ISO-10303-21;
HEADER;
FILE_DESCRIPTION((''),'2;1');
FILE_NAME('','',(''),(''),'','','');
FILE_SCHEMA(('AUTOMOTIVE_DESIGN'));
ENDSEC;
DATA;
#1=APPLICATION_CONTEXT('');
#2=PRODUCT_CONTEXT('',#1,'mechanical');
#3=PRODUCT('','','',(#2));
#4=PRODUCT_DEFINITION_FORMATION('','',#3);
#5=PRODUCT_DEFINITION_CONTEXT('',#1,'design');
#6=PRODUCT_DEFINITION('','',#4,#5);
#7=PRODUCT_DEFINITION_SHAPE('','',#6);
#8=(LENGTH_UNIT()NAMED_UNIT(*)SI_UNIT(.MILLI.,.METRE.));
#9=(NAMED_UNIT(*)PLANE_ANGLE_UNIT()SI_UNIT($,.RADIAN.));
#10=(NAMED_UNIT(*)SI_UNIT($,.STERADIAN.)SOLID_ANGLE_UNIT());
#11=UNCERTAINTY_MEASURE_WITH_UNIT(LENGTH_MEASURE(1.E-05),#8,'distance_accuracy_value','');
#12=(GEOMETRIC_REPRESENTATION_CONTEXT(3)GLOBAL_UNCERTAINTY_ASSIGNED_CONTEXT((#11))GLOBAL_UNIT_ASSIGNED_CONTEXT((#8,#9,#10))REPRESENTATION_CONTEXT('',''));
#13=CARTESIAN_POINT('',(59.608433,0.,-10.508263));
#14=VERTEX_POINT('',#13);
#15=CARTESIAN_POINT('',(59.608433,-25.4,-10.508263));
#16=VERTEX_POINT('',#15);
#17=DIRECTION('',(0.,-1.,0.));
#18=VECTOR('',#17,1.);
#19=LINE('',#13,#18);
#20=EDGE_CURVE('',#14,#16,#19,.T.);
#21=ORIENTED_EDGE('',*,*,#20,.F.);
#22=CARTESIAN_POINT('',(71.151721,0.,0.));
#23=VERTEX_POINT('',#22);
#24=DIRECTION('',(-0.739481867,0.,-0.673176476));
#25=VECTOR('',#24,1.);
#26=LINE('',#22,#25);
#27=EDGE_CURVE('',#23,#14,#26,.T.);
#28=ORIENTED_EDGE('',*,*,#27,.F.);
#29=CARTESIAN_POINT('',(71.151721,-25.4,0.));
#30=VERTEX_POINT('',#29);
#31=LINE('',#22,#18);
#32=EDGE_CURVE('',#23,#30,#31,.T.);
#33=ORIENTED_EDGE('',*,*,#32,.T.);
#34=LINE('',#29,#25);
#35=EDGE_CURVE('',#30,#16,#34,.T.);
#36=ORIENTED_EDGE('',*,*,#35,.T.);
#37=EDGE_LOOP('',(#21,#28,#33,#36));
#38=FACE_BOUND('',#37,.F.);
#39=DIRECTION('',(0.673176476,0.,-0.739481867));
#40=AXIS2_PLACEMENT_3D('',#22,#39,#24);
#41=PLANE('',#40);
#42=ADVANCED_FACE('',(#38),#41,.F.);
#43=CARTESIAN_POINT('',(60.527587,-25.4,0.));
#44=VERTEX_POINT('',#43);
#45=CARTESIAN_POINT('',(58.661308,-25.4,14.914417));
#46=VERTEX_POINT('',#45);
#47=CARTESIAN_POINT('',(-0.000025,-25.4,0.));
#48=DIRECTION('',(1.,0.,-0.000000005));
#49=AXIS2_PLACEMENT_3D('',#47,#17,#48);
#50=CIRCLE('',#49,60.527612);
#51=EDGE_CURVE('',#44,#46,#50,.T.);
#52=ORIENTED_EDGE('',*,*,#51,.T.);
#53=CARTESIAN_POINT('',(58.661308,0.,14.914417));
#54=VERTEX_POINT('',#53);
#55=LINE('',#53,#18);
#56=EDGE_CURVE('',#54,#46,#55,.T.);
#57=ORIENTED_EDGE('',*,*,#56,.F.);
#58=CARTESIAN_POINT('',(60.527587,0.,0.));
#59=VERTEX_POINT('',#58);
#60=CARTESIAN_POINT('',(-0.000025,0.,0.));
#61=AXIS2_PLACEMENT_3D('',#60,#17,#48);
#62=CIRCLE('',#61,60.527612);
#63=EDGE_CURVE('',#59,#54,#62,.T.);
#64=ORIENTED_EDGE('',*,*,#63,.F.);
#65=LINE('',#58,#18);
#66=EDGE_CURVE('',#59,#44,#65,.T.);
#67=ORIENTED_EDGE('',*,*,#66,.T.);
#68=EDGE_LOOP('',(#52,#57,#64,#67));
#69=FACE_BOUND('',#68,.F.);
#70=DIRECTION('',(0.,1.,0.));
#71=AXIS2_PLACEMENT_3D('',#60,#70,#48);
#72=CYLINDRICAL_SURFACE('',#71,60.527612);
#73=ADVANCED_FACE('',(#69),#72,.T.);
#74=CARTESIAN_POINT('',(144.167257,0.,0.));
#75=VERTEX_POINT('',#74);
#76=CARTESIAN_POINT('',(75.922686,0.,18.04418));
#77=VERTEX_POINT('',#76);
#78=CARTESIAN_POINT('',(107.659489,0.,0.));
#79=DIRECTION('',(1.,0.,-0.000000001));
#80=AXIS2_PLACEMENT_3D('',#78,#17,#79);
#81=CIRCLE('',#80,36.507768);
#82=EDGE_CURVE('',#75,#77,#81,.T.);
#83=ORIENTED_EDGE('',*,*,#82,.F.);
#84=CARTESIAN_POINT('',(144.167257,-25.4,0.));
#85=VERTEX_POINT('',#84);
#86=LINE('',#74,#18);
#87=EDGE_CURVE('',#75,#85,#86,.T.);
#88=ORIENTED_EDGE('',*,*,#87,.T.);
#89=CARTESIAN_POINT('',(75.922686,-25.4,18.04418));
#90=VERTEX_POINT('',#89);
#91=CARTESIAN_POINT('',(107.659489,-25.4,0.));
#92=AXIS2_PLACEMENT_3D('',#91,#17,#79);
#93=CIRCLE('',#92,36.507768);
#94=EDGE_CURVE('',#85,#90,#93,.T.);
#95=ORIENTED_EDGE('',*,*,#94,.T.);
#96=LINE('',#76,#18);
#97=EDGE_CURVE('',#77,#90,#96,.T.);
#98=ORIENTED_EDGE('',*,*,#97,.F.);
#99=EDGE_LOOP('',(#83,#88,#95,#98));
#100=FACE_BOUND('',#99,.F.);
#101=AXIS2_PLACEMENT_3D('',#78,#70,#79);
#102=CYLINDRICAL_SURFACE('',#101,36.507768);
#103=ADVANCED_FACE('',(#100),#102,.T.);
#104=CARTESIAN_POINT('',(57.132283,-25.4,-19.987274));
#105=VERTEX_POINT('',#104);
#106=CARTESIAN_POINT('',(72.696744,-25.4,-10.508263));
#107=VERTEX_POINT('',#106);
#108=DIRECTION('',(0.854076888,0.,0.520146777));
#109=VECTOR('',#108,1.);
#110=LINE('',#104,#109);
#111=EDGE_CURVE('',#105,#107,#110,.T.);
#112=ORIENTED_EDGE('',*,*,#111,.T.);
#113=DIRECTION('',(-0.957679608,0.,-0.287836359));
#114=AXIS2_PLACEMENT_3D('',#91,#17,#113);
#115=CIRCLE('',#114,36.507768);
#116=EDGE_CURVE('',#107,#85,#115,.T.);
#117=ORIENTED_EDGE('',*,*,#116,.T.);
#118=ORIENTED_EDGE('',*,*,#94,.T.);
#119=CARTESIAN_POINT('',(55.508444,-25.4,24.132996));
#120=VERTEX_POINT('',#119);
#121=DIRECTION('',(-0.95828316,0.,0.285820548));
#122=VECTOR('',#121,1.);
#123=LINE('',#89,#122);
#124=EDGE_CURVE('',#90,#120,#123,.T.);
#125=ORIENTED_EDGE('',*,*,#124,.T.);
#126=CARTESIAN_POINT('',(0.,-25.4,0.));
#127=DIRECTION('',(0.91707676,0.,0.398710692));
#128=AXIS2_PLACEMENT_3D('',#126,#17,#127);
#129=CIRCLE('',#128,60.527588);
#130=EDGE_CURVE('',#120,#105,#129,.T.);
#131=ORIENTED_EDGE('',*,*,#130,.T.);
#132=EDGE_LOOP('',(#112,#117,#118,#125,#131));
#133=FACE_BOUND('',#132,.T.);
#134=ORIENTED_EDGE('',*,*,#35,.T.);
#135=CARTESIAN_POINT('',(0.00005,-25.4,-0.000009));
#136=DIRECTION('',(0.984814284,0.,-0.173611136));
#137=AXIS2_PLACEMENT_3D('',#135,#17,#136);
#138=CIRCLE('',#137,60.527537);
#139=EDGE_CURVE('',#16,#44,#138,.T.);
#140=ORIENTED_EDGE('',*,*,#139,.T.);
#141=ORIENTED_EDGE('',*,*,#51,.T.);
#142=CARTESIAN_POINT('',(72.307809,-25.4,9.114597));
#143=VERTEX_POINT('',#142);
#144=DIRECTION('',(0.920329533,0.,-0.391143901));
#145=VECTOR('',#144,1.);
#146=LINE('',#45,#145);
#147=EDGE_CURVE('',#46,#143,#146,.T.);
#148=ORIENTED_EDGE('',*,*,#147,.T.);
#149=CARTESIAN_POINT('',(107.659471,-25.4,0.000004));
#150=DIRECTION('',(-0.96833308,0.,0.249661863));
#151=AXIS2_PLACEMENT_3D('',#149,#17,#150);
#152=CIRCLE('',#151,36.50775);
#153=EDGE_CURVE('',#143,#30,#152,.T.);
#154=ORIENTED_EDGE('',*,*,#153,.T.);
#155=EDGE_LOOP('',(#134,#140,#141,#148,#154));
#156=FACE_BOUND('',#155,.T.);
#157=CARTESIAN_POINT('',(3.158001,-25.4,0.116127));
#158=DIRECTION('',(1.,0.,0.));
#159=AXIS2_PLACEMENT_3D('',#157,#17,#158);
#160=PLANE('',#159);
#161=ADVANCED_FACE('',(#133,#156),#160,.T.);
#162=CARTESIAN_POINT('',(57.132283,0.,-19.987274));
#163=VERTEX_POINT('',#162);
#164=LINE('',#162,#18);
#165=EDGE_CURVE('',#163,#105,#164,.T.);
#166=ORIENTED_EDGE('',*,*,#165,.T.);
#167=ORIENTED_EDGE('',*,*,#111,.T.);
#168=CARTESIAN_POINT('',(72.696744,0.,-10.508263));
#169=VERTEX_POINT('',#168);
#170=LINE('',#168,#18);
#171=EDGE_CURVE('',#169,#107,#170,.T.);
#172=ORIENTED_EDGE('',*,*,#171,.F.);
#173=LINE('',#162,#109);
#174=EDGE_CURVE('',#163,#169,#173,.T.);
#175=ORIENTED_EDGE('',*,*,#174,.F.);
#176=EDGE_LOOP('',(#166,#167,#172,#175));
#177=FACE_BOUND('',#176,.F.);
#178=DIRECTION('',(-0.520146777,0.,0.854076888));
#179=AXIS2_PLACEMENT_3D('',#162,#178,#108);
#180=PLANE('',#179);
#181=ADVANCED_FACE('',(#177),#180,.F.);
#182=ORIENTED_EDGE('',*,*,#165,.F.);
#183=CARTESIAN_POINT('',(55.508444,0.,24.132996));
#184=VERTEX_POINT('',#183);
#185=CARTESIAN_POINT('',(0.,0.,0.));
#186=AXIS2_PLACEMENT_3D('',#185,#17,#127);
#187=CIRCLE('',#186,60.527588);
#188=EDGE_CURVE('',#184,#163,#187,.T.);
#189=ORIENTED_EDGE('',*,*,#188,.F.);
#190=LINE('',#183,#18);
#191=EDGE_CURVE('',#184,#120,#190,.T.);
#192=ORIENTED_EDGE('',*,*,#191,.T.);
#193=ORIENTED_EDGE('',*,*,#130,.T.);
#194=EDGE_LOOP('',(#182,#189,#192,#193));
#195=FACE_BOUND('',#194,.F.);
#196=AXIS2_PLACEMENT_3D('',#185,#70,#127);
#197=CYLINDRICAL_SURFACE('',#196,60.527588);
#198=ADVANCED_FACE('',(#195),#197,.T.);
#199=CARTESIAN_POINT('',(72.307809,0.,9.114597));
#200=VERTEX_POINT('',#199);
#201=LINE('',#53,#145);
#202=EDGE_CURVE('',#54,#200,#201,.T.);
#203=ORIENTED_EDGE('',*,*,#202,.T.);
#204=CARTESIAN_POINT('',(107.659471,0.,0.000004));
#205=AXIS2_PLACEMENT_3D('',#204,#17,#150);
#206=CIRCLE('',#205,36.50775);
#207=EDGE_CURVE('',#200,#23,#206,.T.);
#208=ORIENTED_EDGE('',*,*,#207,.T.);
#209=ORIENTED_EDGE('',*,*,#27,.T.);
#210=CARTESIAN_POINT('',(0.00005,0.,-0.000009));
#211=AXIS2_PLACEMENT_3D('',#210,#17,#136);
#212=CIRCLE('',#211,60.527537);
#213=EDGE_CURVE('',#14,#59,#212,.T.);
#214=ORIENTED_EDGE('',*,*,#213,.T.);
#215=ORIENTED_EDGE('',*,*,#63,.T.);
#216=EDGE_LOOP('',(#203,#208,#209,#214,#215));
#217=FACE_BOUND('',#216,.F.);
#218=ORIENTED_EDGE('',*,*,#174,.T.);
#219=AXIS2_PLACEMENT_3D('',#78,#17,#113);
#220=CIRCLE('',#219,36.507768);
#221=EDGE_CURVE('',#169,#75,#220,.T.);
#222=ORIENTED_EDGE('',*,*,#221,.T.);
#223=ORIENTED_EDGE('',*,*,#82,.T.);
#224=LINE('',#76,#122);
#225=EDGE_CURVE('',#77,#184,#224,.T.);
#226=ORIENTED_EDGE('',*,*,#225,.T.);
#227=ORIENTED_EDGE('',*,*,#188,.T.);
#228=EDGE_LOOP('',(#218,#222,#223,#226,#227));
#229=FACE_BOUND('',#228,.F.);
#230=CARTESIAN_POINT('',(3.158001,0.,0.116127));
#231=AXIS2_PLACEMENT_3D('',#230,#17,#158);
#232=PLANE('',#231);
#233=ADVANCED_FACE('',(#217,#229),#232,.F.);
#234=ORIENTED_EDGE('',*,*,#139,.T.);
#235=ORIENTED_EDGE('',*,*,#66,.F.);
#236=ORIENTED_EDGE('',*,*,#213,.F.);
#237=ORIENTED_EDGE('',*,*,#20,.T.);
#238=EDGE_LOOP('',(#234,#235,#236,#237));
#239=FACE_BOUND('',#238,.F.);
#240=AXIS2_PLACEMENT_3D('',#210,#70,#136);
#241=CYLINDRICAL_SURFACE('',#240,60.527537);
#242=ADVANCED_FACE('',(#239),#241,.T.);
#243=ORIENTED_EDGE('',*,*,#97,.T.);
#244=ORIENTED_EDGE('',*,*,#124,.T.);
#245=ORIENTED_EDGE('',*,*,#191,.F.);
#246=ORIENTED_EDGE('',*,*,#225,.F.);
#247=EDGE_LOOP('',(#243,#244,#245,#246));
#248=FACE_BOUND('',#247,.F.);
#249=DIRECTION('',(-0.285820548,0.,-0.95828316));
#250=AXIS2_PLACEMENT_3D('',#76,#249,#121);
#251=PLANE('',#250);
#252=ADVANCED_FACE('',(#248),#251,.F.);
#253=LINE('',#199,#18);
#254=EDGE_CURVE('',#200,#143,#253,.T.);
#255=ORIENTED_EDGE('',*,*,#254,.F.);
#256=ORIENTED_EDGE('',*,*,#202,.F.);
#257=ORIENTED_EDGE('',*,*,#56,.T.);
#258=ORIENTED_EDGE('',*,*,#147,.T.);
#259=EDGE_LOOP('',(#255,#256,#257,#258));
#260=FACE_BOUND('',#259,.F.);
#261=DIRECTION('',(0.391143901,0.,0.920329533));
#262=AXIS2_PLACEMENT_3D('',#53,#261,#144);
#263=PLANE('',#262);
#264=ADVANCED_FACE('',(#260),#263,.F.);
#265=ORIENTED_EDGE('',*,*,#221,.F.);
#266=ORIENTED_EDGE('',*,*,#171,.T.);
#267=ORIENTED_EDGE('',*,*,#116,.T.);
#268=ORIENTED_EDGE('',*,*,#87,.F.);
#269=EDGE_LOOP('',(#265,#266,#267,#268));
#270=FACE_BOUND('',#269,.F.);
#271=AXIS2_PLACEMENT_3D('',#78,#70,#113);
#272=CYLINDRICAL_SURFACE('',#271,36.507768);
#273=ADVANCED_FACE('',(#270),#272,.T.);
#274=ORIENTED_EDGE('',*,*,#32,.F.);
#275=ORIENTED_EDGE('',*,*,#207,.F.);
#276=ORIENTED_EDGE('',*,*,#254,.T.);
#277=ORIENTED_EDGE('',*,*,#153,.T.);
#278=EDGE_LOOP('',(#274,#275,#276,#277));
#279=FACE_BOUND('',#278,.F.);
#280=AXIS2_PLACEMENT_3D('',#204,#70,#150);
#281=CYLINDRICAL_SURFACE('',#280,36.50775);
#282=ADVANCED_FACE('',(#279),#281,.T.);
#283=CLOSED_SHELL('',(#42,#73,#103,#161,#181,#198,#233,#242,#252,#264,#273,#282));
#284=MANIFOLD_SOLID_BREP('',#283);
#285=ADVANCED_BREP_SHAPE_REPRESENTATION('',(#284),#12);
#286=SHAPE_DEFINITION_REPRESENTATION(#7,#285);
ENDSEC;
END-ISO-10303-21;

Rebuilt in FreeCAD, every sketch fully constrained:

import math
import FreeCAD as App
import Part
import Sketcher

doc = App.newDocument("Part")
params = doc.addObject("Spreadsheet::Sheet", "Params")
for row, (alias, value) in enumerate([
    ("pad1_length", "1 in"),
], start=1):
    params.set(f"A{row}", alias)
    params.set(f"B{row}", "=" + value)
    params.setAlias(f"B{row}", alias)

body = doc.addObject("PartDesign::Body", "Body")

# Sketch on XZ plane
sketch1 = doc.addObject("Sketcher::SketchObject", "Sketch")
body.addObject(sketch1)
sketch1.AttachmentSupport = (doc.XZ_Plane, [""])
sketch1.MapMode = "FlatFace"
sketch1.addGeometry([
    Part.LineSegment(App.Vector(76, 18, 0), App.Vector(56, 24, 0)),  # 0
    Part.ArcOfCircle(Part.Circle(App.Vector(0, 0, 0), App.Vector(0, 0, 1), 61), math.radians(23), math.radians(341)),  # 1
    Part.LineSegment(App.Vector(57, -20, 0), App.Vector(73, -11, 0)),  # 2
    Part.ArcOfCircle(Part.Circle(App.Vector(108, 0, 0), App.Vector(0, 0, 1), 37), math.radians(-163), math.radians(0)),  # 3
    Part.ArcOfCircle(Part.Circle(App.Vector(108, 0, 0), App.Vector(0, 0, 1), 37), math.radians(0), math.radians(150)),  # 4
    Part.ArcOfCircle(Part.Circle(App.Vector(0, 0, 0), App.Vector(0, 0, 1), 61), math.radians(-10), math.radians(0)),  # 5
    Part.ArcOfCircle(Part.Circle(App.Vector(0, 0, 0), App.Vector(0, 0, 1), 61), math.radians(0), math.radians(14.26)),  # 6
    Part.LineSegment(App.Vector(59, 15, 0), App.Vector(72, 9, 0)),  # 7
    Part.ArcOfCircle(Part.Circle(App.Vector(108, 0, 0), App.Vector(0, 0, 1), 37), math.radians(165.54), math.radians(180)),  # 8
    Part.LineSegment(App.Vector(71, 0, 0), App.Vector(60, -11, 0)),  # 9
], False)
sketch1.addConstraint([
    Sketcher.Constraint("Coincident", 0, 2, 1, 1),
    Sketcher.Constraint("Coincident", 1, 2, 2, 1),
    Sketcher.Constraint("Coincident", 2, 2, 3, 1),
    Sketcher.Constraint("Tangent", 3, 2, 4, 1),
    Sketcher.Constraint("Coincident", 4, 2, 0, 1),
    Sketcher.Constraint("Tangent", 5, 2, 6, 1),
    Sketcher.Constraint("Coincident", 6, 2, 7, 1),
    Sketcher.Constraint("Coincident", 7, 2, 8, 1),
    Sketcher.Constraint("Coincident", 8, 2, 9, 1),
    Sketcher.Constraint("Coincident", 9, 2, 5, 1),
    Sketcher.Constraint("Coincident", 1, 3, -1, 1),
    Sketcher.Constraint("Equal", 3, 4),
    Sketcher.Constraint("PointOnObject", 3, 3, -1),
    Sketcher.Constraint("PointOnObject", 6, 3, -1),
    Sketcher.Constraint("PointOnObject", 3, 2, -1),
    Sketcher.Constraint("PointOnObject", 5, 2, -1),
    Sketcher.Constraint("PointOnObject", 8, 2, -1),
    Sketcher.Constraint("Horizontal", 2, 2, 9, 2),
    Sketcher.Constraint("Radius", 3, 36.507768),
    Sketcher.Constraint("Radius", 6, 60.527612),
    Sketcher.Constraint("Radius", 8, 36.50775),
    Sketcher.Constraint("Radius", 1, 60.527588),
    Sketcher.Constraint("Radius", 5, 60.527537),
    Sketcher.Constraint("DistanceX", 0, 2, 2, 2, 17.1883),
    Sketcher.Constraint("DistanceX", 5, 2, 4, 2, 15.395099),
    Sketcher.Constraint("DistanceX", 6, 2, 7, 2, 13.646501),
    Sketcher.Constraint("DistanceY", 7, 2, 0, 2, 15.018399),
    Sketcher.Constraint("DistanceX", -1, 1, 3, 3, 107.659489),
    Sketcher.Constraint("DistanceX", -1, 1, 8, 3, 107.659471),
    Sketcher.Constraint("DistanceY", -1, 1, 4, 2, 18.04418),
    Sketcher.Constraint("DistanceX", -1, 1, 6, 2, 58.661308),
    Sketcher.Constraint("DistanceX", 0, 2, 1, 2, 1.623839),
    Sketcher.Constraint("DistanceY", 1, 2, 0, 2, 44.12027),
])
pad1 = doc.addObject("PartDesign::Pad", "Pad")
body.addObject(pad1)
pad1.Profile = sketch1
pad1.setExpression("Length", "Params.pad1_length")

doc.recompute()
